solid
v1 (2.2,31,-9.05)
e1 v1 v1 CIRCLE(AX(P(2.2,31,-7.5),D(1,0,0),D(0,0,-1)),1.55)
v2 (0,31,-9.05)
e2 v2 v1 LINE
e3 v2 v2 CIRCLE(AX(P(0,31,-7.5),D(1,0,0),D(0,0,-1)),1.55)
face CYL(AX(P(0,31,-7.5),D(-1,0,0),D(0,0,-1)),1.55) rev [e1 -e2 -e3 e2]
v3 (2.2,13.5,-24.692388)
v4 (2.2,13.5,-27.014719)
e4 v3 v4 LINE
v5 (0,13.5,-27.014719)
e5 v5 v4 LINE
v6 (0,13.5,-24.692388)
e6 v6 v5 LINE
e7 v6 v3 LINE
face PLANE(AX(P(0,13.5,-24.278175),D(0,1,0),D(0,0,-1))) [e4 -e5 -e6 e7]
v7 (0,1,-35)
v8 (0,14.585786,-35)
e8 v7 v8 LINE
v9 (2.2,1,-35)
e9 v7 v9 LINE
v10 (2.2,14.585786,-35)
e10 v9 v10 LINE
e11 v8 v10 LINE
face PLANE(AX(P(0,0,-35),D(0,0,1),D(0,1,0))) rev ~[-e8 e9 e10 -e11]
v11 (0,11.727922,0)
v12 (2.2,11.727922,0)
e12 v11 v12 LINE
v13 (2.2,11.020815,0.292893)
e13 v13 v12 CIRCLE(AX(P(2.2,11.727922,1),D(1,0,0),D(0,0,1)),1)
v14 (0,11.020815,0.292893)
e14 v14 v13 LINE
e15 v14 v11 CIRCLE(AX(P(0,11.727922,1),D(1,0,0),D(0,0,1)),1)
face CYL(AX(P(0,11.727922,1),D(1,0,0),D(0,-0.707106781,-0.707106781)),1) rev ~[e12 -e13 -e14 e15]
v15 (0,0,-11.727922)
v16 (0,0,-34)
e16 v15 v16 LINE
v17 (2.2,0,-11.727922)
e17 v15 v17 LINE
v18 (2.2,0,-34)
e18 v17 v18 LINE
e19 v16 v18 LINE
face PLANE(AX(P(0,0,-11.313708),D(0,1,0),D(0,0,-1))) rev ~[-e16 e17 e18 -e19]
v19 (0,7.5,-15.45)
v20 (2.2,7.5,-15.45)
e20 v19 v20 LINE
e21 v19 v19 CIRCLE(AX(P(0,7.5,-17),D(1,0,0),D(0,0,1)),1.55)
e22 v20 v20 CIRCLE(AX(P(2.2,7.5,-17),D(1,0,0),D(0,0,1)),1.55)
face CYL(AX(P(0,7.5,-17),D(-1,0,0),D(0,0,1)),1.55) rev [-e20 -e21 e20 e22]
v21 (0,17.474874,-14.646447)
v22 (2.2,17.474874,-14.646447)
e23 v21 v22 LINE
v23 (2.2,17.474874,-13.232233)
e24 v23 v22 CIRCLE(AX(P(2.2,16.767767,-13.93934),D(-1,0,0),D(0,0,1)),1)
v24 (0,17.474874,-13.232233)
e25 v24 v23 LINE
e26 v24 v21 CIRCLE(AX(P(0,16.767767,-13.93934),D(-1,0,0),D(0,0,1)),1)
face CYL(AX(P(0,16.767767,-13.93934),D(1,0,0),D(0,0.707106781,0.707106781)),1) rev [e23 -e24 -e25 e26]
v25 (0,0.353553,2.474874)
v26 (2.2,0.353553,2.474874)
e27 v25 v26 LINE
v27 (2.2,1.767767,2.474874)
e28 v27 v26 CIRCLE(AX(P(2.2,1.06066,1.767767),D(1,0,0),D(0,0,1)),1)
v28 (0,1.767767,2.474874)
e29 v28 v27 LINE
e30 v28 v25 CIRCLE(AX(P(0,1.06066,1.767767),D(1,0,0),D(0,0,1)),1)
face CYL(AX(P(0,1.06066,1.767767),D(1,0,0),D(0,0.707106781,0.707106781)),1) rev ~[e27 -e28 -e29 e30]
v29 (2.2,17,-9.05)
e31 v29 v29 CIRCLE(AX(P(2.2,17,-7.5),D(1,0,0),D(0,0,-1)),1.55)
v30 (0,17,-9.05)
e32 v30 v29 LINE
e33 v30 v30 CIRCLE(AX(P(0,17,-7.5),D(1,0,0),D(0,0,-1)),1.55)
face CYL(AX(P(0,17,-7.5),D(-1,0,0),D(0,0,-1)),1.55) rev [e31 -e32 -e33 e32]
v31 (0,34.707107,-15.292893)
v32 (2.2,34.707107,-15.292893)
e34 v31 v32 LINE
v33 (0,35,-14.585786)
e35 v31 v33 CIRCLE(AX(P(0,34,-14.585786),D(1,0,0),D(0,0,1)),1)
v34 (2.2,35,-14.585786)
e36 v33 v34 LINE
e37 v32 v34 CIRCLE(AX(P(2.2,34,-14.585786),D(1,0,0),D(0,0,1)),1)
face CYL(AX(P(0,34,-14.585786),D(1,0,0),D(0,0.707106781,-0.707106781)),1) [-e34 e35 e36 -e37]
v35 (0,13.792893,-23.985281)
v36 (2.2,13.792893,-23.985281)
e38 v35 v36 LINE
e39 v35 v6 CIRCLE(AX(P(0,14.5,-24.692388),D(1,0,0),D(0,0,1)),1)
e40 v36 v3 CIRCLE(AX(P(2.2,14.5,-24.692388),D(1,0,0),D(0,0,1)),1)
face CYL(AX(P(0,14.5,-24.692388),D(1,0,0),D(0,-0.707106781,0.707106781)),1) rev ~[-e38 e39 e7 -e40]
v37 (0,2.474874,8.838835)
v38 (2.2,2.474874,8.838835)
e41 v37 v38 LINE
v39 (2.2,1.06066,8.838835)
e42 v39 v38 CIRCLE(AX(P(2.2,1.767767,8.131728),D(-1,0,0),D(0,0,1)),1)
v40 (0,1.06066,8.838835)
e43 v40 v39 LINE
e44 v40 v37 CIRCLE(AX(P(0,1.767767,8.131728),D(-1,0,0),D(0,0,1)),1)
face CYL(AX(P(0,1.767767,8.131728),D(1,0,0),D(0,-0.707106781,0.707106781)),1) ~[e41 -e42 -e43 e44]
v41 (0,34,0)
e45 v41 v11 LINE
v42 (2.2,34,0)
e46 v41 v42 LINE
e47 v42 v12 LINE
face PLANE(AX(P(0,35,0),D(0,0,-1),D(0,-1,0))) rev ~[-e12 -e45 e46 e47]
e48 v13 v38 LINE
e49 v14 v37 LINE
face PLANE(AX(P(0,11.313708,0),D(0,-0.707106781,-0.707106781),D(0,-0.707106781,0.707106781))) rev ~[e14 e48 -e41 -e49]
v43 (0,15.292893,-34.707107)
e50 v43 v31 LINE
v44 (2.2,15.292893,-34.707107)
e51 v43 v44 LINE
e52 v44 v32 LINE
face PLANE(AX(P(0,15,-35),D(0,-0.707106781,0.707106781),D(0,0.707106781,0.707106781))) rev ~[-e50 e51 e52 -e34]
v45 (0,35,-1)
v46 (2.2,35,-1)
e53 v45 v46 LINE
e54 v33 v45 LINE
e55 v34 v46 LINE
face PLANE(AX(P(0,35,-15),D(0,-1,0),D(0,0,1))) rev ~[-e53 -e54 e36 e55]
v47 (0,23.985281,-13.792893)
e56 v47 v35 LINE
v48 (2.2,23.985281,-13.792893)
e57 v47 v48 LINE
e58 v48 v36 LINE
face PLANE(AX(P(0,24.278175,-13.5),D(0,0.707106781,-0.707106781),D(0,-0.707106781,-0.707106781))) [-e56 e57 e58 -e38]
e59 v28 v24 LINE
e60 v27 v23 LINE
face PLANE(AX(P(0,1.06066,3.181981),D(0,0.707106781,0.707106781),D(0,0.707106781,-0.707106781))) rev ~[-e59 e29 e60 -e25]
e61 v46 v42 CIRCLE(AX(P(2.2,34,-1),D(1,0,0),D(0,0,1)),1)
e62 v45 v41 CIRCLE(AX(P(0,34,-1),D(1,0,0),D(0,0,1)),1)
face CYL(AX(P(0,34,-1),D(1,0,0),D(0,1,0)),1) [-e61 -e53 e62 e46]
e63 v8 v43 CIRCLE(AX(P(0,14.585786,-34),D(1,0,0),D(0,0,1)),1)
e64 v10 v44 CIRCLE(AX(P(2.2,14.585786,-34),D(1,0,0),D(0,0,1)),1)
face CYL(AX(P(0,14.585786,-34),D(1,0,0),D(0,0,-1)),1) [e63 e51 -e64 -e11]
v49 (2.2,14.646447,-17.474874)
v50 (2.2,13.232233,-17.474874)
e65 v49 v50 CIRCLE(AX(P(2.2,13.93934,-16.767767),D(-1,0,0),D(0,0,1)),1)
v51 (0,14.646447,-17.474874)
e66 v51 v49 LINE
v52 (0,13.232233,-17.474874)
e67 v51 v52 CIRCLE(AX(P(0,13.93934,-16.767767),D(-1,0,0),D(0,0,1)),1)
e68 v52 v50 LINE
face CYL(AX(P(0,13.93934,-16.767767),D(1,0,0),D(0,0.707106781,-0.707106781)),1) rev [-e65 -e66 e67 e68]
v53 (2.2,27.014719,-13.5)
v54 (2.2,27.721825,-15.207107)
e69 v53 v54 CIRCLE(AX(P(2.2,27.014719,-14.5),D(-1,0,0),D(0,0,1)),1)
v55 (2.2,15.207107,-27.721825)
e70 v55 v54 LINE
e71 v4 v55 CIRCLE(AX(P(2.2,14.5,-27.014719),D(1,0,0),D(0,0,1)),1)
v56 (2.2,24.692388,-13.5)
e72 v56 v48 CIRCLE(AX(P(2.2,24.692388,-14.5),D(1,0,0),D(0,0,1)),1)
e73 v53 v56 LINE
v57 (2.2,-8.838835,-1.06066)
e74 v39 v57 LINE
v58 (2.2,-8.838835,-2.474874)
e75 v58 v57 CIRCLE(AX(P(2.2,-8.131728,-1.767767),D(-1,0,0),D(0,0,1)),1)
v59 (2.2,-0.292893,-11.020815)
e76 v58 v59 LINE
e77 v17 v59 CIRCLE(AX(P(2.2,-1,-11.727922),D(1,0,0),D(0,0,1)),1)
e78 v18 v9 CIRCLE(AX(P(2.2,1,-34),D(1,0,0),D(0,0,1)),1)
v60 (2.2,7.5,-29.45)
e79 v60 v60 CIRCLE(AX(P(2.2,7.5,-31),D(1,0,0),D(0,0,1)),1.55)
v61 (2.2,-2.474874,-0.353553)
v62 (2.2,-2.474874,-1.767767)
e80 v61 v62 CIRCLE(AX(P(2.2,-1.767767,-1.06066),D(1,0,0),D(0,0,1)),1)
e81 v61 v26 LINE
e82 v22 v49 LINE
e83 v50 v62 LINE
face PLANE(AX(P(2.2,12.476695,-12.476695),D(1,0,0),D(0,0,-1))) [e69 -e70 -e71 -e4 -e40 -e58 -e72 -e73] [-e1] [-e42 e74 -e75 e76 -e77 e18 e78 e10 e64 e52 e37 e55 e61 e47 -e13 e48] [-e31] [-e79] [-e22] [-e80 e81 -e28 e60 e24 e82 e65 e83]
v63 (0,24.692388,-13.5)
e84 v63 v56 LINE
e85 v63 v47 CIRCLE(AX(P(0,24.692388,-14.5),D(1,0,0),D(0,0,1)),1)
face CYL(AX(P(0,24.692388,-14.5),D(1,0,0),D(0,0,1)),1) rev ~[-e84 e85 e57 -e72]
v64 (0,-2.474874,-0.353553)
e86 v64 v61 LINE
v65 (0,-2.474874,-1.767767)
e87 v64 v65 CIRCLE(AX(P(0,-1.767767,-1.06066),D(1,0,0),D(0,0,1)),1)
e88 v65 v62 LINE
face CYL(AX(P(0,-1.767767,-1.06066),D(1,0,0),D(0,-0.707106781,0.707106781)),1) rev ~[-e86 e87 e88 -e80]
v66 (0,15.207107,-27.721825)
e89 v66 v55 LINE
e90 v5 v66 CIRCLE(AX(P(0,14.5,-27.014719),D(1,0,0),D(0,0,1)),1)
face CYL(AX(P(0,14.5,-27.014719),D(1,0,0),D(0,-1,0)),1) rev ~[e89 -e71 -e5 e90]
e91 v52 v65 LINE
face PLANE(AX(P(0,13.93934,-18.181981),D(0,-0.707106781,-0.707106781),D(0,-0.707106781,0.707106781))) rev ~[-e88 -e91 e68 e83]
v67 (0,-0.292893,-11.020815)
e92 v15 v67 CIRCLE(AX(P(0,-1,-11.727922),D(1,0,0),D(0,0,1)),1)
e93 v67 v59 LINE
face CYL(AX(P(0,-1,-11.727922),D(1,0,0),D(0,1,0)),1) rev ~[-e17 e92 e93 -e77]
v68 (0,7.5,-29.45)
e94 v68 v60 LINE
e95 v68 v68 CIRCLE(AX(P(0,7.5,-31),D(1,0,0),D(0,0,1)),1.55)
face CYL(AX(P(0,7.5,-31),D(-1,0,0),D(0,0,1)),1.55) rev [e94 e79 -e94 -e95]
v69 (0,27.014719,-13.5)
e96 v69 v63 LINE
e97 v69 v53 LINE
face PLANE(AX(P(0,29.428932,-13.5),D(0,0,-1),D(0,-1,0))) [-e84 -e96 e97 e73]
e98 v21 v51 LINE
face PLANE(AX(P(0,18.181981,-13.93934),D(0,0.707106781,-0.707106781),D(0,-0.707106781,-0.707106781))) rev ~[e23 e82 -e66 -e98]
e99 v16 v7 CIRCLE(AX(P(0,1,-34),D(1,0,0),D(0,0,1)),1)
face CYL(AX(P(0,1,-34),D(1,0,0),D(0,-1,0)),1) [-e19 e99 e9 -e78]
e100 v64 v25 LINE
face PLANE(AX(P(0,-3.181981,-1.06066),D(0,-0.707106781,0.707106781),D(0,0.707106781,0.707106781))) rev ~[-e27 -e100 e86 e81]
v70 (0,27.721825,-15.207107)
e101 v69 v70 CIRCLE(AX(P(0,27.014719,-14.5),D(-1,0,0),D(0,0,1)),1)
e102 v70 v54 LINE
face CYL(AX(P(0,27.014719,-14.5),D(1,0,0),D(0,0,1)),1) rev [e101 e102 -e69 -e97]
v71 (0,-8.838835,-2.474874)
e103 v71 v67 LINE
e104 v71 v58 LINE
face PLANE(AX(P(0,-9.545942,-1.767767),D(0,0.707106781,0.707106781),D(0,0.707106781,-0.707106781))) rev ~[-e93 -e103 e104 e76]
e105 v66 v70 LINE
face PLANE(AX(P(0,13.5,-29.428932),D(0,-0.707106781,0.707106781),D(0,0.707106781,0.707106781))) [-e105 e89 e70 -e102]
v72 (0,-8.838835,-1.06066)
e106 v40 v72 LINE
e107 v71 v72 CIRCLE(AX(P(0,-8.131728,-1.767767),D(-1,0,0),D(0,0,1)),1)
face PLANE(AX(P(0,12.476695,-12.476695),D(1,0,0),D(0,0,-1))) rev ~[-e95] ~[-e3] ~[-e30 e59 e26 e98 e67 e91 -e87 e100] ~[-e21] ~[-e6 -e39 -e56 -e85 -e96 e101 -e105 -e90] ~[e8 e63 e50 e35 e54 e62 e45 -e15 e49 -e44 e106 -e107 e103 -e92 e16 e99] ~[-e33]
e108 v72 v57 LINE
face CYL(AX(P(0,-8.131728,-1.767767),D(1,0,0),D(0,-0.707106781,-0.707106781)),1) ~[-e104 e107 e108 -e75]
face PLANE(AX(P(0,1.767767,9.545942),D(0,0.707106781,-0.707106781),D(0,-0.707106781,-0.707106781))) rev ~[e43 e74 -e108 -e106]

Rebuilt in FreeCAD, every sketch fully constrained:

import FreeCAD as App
import Part
import Sketcher

V = App.Vector


def edges_at(feature, points):
    """Names of the edges that pass closest to the given points."""
    edges = feature.Shape.Edges
    near = lambda p: min(range(len(edges)), key=lambda i: edges[i].distToShape(Part.Vertex(*p))[0])
    return sorted({f"Edge{near(p) + 1}" for p in points})

doc = App.newDocument("Part")
params = doc.addObject("Spreadsheet::Sheet", "Params")
for row, (alias, value) in enumerate([
    ("sketch1_diameter", "3.1 mm"),
    ("sketch1_width", "15 mm"),
    ("sketch1_length", "16 mm"),
    ("sketch1_length2", "6 mm"),
    ("sketch1_length3", "13.5 mm"),
    ("pad1_length", "2.2 mm"),
    ("fillet_radius", "1 mm"),
], start=1):
    params.set(f"A{row}", alias)
    params.set(f"B{row}", "=" + value)
    params.setAlias(f"B{row}", alias)

body = doc.addObject("PartDesign::Body", "Body")

# Sketch on YZ plane
sketch1 = doc.addObject("Sketcher::SketchObject", "Sketch")
body.addObject(sketch1)
sketch1.AttachmentSupport = (doc.YZ_Plane, [""])
sketch1.MapMode = "FlatFace"
sketch1.addGeometry([
    Part.LineSegment(V(0, -11.3, 0), V(0, -35, 0)),  # 0
    Part.LineSegment(V(0, -35, 0), V(15, -35, 0)),  # 1
    Part.LineSegment(V(15, -35, 0), V(35, -15, 0)),  # 2
    Part.LineSegment(V(35, -15, 0), V(35, 0, 0)),  # 3
    Part.LineSegment(V(35, 0, 0), V(11.3, 0, 0)),  # 4
    Part.LineSegment(V(11.3, 0, 0), V(1.8, 9.5, 0)),  # 5
    Part.LineSegment(V(1.8, 9.5, 0), V(-9.5, -1.8, 0)),  # 6
    Part.LineSegment(V(-9.5, -1.8, 0), V(0, -11.3, 0)),  # 7
    Part.LineSegment(V(1.1, 3.2, 0), V(18.2, -13.9, 0)),  # 8
    Part.LineSegment(V(18.2, -13.9, 0), V(13.9, -18.2, 0)),  # 9
    Part.LineSegment(V(13.9, -18.2, 0), V(-3.2, -1.1, 0)),  # 10
    Part.LineSegment(V(-3.2, -1.1, 0), V(1.1, 3.2, 0)),  # 11
    Part.Circle(V(7.5, -17, 0), V(0, 0, 1), 1.6),  # 12
    Part.Circle(V(7.5, -31, 0), V(0, 0, 1), 1.6),  # 13
    Part.Circle(V(17, -7.5, 0), V(0, 0, 1), 1.6),  # 14
    Part.Circle(V(31, -7.5, 0), V(0, 0, 1), 1.6),  # 15
    Part.LineSegment(V(24.3, -13.5, 0), V(29.4, -13.5, 0)),  # 16
    Part.LineSegment(V(29.4, -13.5, 0), V(13.5, -29.4, 0)),  # 17
    Part.LineSegment(V(13.5, -29.4, 0), V(13.5, -24.3, 0)),  # 18
    Part.LineSegment(V(13.5, -24.3, 0), V(24.3, -13.5, 0)),  # 19
], False)
sketch1.addConstraint([
    Sketcher.Constraint("Coincident", 0, 2, 1, 1),
    Sketcher.Constraint("Coincident", 1, 2, 2, 1),
    Sketcher.Constraint("Coincident", 2, 2, 3, 1),
    Sketcher.Constraint("Coincident", 3, 2, 4, 1),
    Sketcher.Constraint("Coincident", 4, 2, 5, 1),
    Sketcher.Constraint("Coincident", 5, 2, 6, 1),
    Sketcher.Constraint("Coincident", 6, 2, 7, 1),
    Sketcher.Constraint("Coincident", 7, 2, 0, 1),
    Sketcher.Constraint("Coincident", 8, 2, 9, 1),
    Sketcher.Constraint("Coincident", 9, 2, 10, 1),
    Sketcher.Constraint("Coincident", 10, 2, 11, 1),
    Sketcher.Constraint("Coincident", 11, 2, 8, 1),
    Sketcher.Constraint("Coincident", 16, 2, 17, 1),
    Sketcher.Constraint("Coincident", 17, 2, 18, 1),
    Sketcher.Constraint("Coincident", 18, 2, 19, 1),
    Sketcher.Constraint("Coincident", 19, 2, 16, 1),
    Sketcher.Constraint("Vertical", 0),
    Sketcher.Constraint("Horizontal", 1),
    Sketcher.Constraint("Vertical", 3),
    Sketcher.Constraint("Horizontal", 4),
    Sketcher.Constraint("Horizontal", 16),
    Sketcher.Constraint("Vertical", 18),
    Sketcher.Constraint("Equal", 12, 13),
    Sketcher.Constraint("Equal", 13, 14),
    Sketcher.Constraint("Equal", 14, 15),
    Sketcher.Constraint("PointOnObject", 0, 2, -2),
    Sketcher.Constraint("PointOnObject", 3, 2, -1),
    Sketcher.Constraint("Perpendicular", 2, 5),
    Sketcher.Constraint("Perpendicular", 5, 6),
    Sketcher.Constraint("Perpendicular", 6, 7),
    Sketcher.Constraint("Parallel", 7, 8),
    Sketcher.Constraint("Perpendicular", 8, 9),
    Sketcher.Constraint("Perpendicular", 9, 10),
    Sketcher.Constraint("Perpendicular", 10, 11),
    Sketcher.Constraint("Parallel", 11, 17),
    Sketcher.Constraint("Parallel", 17, 19),
    Sketcher.Constraint("Horizontal", 14, 3, 15, 3),
    Sketcher.Constraint("Vertical", 12, 3, 13, 3),
    Sketcher.Constraint("Equal", 4, 0),
    Sketcher.Constraint("Equal", 1, 3),
    Sketcher.Constraint("Equal", 16, 18),
    Sketcher.Constraint("Diameter", 12, 3.1),
    Sketcher.Constraint("DistanceX", 1, 1, 1, 2, 15.0),
    Sketcher.Constraint("Distance", 6, 16.0),
    Sketcher.Constraint("Distance", 9, 6.0),
    Sketcher.Constraint("DistanceY", 12, 3, -1, 1, 17.0),
    Sketcher.Constraint("DistanceY", 13, 3, -1, 1, 31.0),
    Sketcher.Constraint("DistanceX", -1, 1, 14, 3, 17.0),
    Sketcher.Constraint("DistanceX", -1, 1, 15, 3, 31.0),
    Sketcher.Constraint("DistanceY", 0, 2, -1, 1, 35.0),
    Sketcher.Constraint("DistanceY", 16, 2, 15, 3, 6.0),
    Sketcher.Constraint("DistanceX", 13, 3, 17, 2, 6.0),
    Sketcher.Constraint("Distance", 5, 13.5),
    Sketcher.Constraint("DistanceX", -1, 1, 12, 3, 7.5),
    Sketcher.Constraint("DistanceY", 14, 3, -1, 1, 7.5),
    Sketcher.Constraint("DistanceY", 10, 2, 5, 2, 10.606602),
    Sketcher.Constraint("DistanceX", 6, 2, 11, 2, 10.606602),
    Sketcher.Constraint("Distance", 17, 22.526912),
    Sketcher.Constraint("Distance", 19, 15.242641),
    Sketcher.Constraint("DistanceX", -1, 1, 8, 2, 18.181981),
])
sketch1.setExpression("Constraints[41]", "Params.sketch1_diameter")
sketch1.setExpression("Constraints[42]", "Params.sketch1_width")
sketch1.setExpression("Constraints[43]", "Params.sketch1_length")
sketch1.setExpression("Constraints[44]", "Params.sketch1_length2")
sketch1.setExpression("Constraints[52]", "Params.sketch1_length3")
pad1 = doc.addObject("PartDesign::Pad", "Pad")
body.addObject(pad1)
pad1.Profile = sketch1
pad1.setExpression("Length", "Params.pad1_length")
doc.recompute()

fillet = doc.addObject("PartDesign::Fillet", "Fillet")
body.addObject(fillet)
fillet.Base = (pad1, edges_at(pad1, [
    (1.1, 35, 0),
    (1.1, 35, -15),
    (1.1, 15, -35),
    (1.1, 0, -35),
    (1.1, 0, -11.314),
    (1.1, -9.546, -1.768),
    (1.1, 1.768, 9.546),
    (1.1, 11.314, 0),
    (1.1, 18.182, -13.939),
    (1.1, 1.061, 3.182),
    (1.1, -3.182, -1.061),
    (1.1, 13.939, -18.182),
    (1.1, 13.5, -24.278),
    (1.1, 13.5, -29.429),
    (1.1, 29.429, -13.5),
    (1.1, 24.278, -13.5),
]))
fillet.setExpression("Radius", "Params.fillet_radius")

doc.recompute()
